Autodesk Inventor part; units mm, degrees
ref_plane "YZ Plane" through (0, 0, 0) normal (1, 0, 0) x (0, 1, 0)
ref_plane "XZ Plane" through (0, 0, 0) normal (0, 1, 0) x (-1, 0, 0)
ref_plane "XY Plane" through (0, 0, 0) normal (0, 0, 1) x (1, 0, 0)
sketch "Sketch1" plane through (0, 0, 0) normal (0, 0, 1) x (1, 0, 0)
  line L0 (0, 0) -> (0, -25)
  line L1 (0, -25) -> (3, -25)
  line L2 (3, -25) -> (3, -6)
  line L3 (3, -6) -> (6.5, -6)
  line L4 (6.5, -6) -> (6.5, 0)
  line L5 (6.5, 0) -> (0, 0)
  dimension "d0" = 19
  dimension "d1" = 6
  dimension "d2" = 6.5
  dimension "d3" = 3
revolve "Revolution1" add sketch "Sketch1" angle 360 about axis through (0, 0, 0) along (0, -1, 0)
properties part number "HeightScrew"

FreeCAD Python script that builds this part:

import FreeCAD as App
import Part
import Sketcher
Q = App.Units.Quantity

doc = App.newDocument("Part")
body = doc.addObject("PartDesign::Body", "Body")

# Sketch on XY plane
sketch1 = doc.addObject("Sketcher::SketchObject", "Sketch")
body.addObject(sketch1)
sketch1.AttachmentSupport = (doc.XY_Plane, [""])
sketch1.MapMode = "FlatFace"
sketch1.addGeometry(Part.LineSegment(App.Vector(6.5, 0, 0), App.Vector(0, 0, 0)), False)
sketch1.addGeometry(Part.LineSegment(App.Vector(0, 0, 0), App.Vector(0, -25, 0)), False)
sketch1.addGeometry(Part.LineSegment(App.Vector(0, -25, 0), App.Vector(3, -25, 0)), False)
sketch1.addGeometry(Part.LineSegment(App.Vector(3, -25, 0), App.Vector(3, -6, 0)), False)
sketch1.addGeometry(Part.LineSegment(App.Vector(3, -6, 0), App.Vector(6.5, -6, 0)), False)
sketch1.addGeometry(Part.LineSegment(App.Vector(6.5, -6, 0), App.Vector(6.5, 0, 0)), False)
sketch1.addConstraint(Sketcher.Constraint("Coincident", 0, 2, 1, 1))
sketch1.addConstraint(Sketcher.Constraint("Coincident", 1, 2, 2, 1))
sketch1.addConstraint(Sketcher.Constraint("Coincident", 2, 2, 3, 1))
sketch1.addConstraint(Sketcher.Constraint("Coincident", 3, 2, 4, 1))
sketch1.addConstraint(Sketcher.Constraint("Coincident", 4, 2, 5, 1))
sketch1.addConstraint(Sketcher.Constraint("Coincident", 5, 2, 0, 1))
sketch1.addConstraint(Sketcher.Constraint("Horizontal", 0))
sketch1.addConstraint(Sketcher.Constraint("Vertical", 1))
sketch1.addConstraint(Sketcher.Constraint("Horizontal", 2))
sketch1.addConstraint(Sketcher.Constraint("Vertical", 3))
sketch1.addConstraint(Sketcher.Constraint("Horizontal", 4))
sketch1.addConstraint(Sketcher.Constraint("Vertical", 5))
sketch1.addConstraint(Sketcher.Constraint("Coincident", 0, 2, -1, 1))
sketch1.addConstraint(Sketcher.Constraint("DistanceX", 2, 1, 2, 2, Q("3 mm")))
sketch1.addConstraint(Sketcher.Constraint("DistanceY", 3, 1, 3, 2, Q("19 mm")))
sketch1.addConstraint(Sketcher.Constraint("DistanceY", 5, 1, 5, 2, Q("6 mm")))
sketch1.addConstraint(Sketcher.Constraint("DistanceX", 0, 2, 0, 1, Q("6.5 mm")))
revolution = doc.addObject("PartDesign::Revolution", "Revolution")
body.addObject(revolution)
revolution.Profile = sketch1
revolution.ReferenceAxis = (sketch1, ["V_Axis"])
revolution.Angle = 360

doc.recompute()
